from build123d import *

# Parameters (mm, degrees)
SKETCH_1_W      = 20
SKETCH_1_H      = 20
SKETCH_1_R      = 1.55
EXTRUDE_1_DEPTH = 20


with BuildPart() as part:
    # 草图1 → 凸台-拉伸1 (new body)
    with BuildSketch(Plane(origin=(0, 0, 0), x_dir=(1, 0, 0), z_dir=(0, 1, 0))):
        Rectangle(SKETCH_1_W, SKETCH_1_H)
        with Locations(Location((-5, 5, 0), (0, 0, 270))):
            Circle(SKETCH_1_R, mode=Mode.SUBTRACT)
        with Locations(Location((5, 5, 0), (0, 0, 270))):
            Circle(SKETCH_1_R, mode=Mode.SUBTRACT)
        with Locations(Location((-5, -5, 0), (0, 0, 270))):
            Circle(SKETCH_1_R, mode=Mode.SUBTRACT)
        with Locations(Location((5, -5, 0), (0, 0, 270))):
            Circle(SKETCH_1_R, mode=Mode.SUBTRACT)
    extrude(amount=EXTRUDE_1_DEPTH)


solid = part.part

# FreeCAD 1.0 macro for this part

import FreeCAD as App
import Part
import Sketcher
Q = App.Units.Quantity

doc = App.newDocument("Part")
body = doc.addObject("PartDesign::Body", "Body")

sketch1 = doc.addObject("Sketcher::SketchObject", "Sketch")
body.addObject(sketch1)
sketch1.AttachmentSupport = (doc.XZ_Plane, [""])
sketch1.MapMode = "FlatFace"
sketch1.addGeometry([
    Part.LineSegment(App.Vector(-10, -10, 0), App.Vector(-10, 10, 0)),
    Part.LineSegment(App.Vector(-10, 10, 0), App.Vector(10, 10, 0)),
    Part.LineSegment(App.Vector(10, 10, 0), App.Vector(10, -10, 0)),
    Part.LineSegment(App.Vector(10, -10, 0), App.Vector(-10, -10, 0)),
    Part.Circle(App.Vector(-5, 5, 0), App.Vector(0, 0, 1), 1.6),
    Part.Circle(App.Vector(5, 5, 0), App.Vector(0, 0, 1), 1.6),
    Part.Circle(App.Vector(-5, -5, 0), App.Vector(0, 0, 1), 1.6),
    Part.Circle(App.Vector(5, -5, 0), App.Vector(0, 0, 1), 1.6),
], False)
sketch1.addConstraint([
    Sketcher.Constraint("Coincident", 0, 2, 1, 1),
    Sketcher.Constraint("Coincident", 1, 2, 2, 1),
    Sketcher.Constraint("Coincident", 2, 2, 3, 1),
    Sketcher.Constraint("Coincident", 3, 2, 0, 1),
    Sketcher.Constraint("Vertical", 0),
    Sketcher.Constraint("Horizontal", 1),
    Sketcher.Constraint("Vertical", 2),
    Sketcher.Constraint("Horizontal", 3),
    Sketcher.Constraint("Equal", 4, 5),
    Sketcher.Constraint("Equal", 5, 6),
    Sketcher.Constraint("Equal", 6, 7),
    Sketcher.Constraint("Symmetric", 5, 3, 6, 3, -1, 1),
    Sketcher.Constraint("Symmetric", 4, 3, 7, 3, -1, 1),
    Sketcher.Constraint("Symmetric", 0, 2, 2, 2, -1, 1),
    Sketcher.Constraint("Symmetric", 4, 3, 5, 3, -2),
    Sketcher.Constraint("Equal", 3, 0),
    Sketcher.Constraint("Diameter", 4, Q("3.1 mm")),
    Sketcher.Constraint("DistanceX", 1, 1, 1, 2, Q("20 mm")),
    Sketcher.Constraint("DistanceX", 4, 3, -1, 1, Q("5 mm")),
    Sketcher.Constraint("DistanceY", -1, 1, 4, 3, Q("5 mm")),
])
pad1 = doc.addObject("PartDesign::Pad", "Pad")
body.addObject(pad1)
pad1.Profile = sketch1
pad1.Length = 20
pad1.Reversed = True

doc.recompute()
